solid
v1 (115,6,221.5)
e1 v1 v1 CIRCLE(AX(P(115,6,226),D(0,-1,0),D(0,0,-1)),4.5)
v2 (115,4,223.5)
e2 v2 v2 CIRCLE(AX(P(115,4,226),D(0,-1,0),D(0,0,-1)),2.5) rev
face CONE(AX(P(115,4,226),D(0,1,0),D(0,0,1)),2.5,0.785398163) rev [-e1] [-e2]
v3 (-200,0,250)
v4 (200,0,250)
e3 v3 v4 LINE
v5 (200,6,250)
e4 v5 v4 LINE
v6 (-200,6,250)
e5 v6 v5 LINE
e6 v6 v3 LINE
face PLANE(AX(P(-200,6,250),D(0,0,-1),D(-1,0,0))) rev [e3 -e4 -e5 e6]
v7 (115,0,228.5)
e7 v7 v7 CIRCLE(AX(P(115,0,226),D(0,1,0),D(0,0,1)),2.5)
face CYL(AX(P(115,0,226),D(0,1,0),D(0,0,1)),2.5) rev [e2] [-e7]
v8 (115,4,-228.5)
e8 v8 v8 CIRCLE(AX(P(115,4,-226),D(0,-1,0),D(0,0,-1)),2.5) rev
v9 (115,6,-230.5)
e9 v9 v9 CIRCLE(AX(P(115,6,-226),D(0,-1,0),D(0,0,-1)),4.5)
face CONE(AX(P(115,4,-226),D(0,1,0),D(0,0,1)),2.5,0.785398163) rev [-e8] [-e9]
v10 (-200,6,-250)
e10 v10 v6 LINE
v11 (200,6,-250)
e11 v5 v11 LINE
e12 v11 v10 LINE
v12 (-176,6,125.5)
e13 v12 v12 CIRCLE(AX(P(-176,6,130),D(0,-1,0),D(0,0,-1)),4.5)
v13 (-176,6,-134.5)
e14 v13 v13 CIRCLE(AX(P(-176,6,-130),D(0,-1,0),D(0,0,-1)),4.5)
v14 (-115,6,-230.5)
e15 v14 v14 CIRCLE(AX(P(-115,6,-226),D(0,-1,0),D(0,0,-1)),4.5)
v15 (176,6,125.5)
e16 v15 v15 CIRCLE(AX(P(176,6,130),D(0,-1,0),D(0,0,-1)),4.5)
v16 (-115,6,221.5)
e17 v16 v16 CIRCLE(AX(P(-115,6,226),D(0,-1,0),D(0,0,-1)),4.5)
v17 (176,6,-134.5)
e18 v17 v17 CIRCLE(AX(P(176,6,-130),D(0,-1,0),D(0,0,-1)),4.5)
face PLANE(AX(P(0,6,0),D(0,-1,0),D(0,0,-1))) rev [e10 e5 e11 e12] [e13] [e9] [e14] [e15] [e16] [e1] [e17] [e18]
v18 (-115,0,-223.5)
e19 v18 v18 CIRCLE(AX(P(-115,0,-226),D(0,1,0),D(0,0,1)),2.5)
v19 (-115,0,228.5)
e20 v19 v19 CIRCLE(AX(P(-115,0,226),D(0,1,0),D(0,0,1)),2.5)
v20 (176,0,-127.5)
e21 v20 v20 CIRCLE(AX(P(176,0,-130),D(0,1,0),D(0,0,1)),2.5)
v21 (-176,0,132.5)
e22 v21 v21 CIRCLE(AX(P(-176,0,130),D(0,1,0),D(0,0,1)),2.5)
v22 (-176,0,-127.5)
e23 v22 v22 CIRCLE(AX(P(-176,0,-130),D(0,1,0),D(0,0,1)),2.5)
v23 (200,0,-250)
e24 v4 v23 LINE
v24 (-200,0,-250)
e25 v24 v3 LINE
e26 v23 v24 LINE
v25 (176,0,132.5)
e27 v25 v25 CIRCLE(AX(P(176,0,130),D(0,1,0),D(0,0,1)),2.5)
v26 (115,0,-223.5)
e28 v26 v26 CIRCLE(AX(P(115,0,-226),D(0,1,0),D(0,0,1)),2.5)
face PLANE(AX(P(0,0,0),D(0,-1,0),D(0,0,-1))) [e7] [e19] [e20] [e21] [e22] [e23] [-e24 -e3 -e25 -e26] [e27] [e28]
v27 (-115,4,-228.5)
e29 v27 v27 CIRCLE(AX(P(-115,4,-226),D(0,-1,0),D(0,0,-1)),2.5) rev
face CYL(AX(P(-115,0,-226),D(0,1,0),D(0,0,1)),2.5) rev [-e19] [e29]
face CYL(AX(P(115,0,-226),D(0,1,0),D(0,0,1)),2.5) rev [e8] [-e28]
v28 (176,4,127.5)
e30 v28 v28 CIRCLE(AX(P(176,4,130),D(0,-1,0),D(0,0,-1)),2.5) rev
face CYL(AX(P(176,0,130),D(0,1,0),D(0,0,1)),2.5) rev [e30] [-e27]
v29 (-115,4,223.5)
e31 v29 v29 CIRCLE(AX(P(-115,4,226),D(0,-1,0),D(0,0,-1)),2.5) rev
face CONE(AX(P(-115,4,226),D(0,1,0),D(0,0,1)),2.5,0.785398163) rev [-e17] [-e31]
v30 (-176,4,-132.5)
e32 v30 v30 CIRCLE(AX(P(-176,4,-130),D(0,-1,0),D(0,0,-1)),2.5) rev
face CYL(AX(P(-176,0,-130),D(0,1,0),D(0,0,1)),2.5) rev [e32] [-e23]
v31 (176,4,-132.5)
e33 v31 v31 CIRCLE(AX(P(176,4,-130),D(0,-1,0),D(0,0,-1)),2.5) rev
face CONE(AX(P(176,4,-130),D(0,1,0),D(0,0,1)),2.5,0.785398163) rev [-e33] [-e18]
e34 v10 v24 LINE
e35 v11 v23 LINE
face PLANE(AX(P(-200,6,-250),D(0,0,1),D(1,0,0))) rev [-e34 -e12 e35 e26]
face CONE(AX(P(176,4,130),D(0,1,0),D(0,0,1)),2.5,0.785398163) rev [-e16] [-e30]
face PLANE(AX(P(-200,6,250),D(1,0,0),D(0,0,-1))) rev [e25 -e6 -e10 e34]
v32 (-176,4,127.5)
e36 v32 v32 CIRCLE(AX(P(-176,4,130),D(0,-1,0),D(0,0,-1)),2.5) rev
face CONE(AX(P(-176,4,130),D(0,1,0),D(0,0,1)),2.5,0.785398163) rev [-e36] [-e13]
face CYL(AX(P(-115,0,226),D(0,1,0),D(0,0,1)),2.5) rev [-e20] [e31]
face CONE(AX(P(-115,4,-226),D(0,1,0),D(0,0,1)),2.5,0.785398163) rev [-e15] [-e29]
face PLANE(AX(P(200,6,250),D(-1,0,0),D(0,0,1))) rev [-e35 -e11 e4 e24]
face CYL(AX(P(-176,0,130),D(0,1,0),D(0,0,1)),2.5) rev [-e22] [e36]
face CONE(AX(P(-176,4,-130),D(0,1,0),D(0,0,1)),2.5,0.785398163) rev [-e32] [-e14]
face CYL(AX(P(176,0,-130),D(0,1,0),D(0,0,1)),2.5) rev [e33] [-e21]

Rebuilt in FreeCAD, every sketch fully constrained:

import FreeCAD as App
import Part
import Sketcher


def edges_at(feature, points):
    """Names of the edges that pass closest to the given points."""
    edges = feature.Shape.Edges
    near = lambda p: min(range(len(edges)), key=lambda i: edges[i].distToShape(Part.Vertex(*p))[0])
    return sorted({f"Edge{near(p) + 1}" for p in points})


def add_polygon(sketch, points):
    """Adds a closed chain of lines whose ends are joined by coincident constraints."""
    first, n = sketch.GeometryCount, len(points)
    for a, b in zip(points, points[1:] + points[:1]):
        sketch.addGeometry(Part.LineSegment(App.Vector(*a, 0), App.Vector(*b, 0)), False)
    for i in range(n):
        sketch.addConstraint(Sketcher.Constraint("Coincident", first + i, 2, first + (i + 1) % n, 1))

doc = App.newDocument("Part")
params = doc.addObject("Spreadsheet::Sheet", "Params")
for row, (alias, value) in enumerate([
    ("sketch1_width", "400 mm"),
    ("sketch1_height", "500 mm"),
    ("pad1_length", "6 mm"),
    ("sketch2_diameter", "5 mm"),
    ("chamfer_size", "2 mm"),
], start=1):
    params.set(f"A{row}", alias)
    params.set(f"B{row}", "=" + value)
    params.setAlias(f"B{row}", alias)

body = doc.addObject("PartDesign::Body", "Body")

sketch1 = body.newObject("Sketcher::SketchObject", "Sketch")
sketch1.AttachmentSupport = (doc.getObject("XZ_Plane"), [""])
sketch1.MapMode = "FlatFace"
add_polygon(sketch1, [(-200, -250), (-200, 250), (200, 250), (200, -250)])
sketch1.addConstraint([
    Sketcher.Constraint("Vertical", 0),
    Sketcher.Constraint("Horizontal", 1),
    Sketcher.Constraint("Vertical", 2),
    Sketcher.Constraint("Horizontal", 3),
    Sketcher.Constraint("Symmetric", 0, 2, 2, 2, -1, 1),
    Sketcher.Constraint("DistanceX", 1, 1, 1, 2, 400.0),
    Sketcher.Constraint("DistanceY", 0, 1, 0, 2, 500.0),
])
sketch1.setExpression("Constraints[9]", "Params.sketch1_width")
sketch1.setExpression("Constraints[10]", "Params.sketch1_height")
pad1 = body.newObject("PartDesign::Pad", "Pad")
pad1.Profile = sketch1
pad1.setExpression("Length", "Params.pad1_length")
pad1.Reversed = True

sketch2 = body.newObject("Sketcher::SketchObject", "Sketch001")
sketch2.AttachmentSupport = (doc.getObject("XZ_Plane"), [""])
sketch2.MapMode = "FlatFace"
sketch2.AttachmentOffset = App.Placement(App.Vector(0, 0, -6), App.Rotation())
sketch2.addGeometry([
    Part.Circle(App.Vector(-176, -130, 0), App.Vector(0, 0, 1), 2.5),
    Part.Circle(App.Vector(176, -130, 0), App.Vector(0, 0, 1), 2.5),
    Part.Circle(App.Vector(-176, 130, 0), App.Vector(0, 0, 1), 2.5),
    Part.Circle(App.Vector(176, 130, 0), App.Vector(0, 0, 1), 2.5),
    Part.Circle(App.Vector(-115, -226, 0), App.Vector(0, 0, 1), 2.5),
    Part.Circle(App.Vector(115, -226, 0), App.Vector(0, 0, 1), 2.5),
    Part.Circle(App.Vector(-115, 226, 0), App.Vector(0, 0, 1), 2.5),
    Part.Circle(App.Vector(115, 226, 0), App.Vector(0, 0, 1), 2.5),
], False)
sketch2.addConstraint([
    Sketcher.Constraint("Equal", 0, 1),
    Sketcher.Constraint("Equal", 1, 2),
    Sketcher.Constraint("Equal", 2, 3),
    Sketcher.Constraint("Equal", 3, 4),
    Sketcher.Constraint("Equal", 4, 5),
    Sketcher.Constraint("Equal", 5, 6),
    Sketcher.Constraint("Equal", 6, 7),
    Sketcher.Constraint("Symmetric", 1, 3, 2, 3, -1, 1),
    Sketcher.Constraint("Symmetric", 0, 3, 3, 3, -1, 1),
    Sketcher.Constraint("Symmetric", 5, 3, 6, 3, -1, 1),
    Sketcher.Constraint("Symmetric", 4, 3, 7, 3, -1, 1),
    Sketcher.Constraint("Symmetric", 0, 3, 1, 3, -2),
    Sketcher.Constraint("Symmetric", 4, 3, 5, 3, -2),
    Sketcher.Constraint("Diameter", 0, 5.0),
    Sketcher.Constraint("DistanceX", 0, 3, -1, 1, 176.0),
    Sketcher.Constraint("DistanceY", 0, 3, -1, 1, 130.0),
    Sketcher.Constraint("DistanceX", 4, 3, -1, 1, 115.0),
    Sketcher.Constraint("DistanceY", 4, 3, -1, 1, 226.0),
])
sketch2.setExpression("Constraints[13]", "Params.sketch2_diameter")
pocket1 = body.newObject("PartDesign::Pocket", "Pocket")
pocket1.Profile = sketch2
pocket1.Type = "ThroughAll"
pocket1.Reversed = True
doc.recompute()

chamfer = body.newObject("PartDesign::Chamfer", "Chamfer")
chamfer.Base = (pocket1, edges_at(pocket1, [
    (-115, 6, -228.5),
    (176, 6, 127.5),
    (-176, 6, 127.5),
    (176, 6, -132.5),
    (115, 6, 223.5),
    (-115, 6, 223.5),
    (115, 6, -228.5),
    (-176, 6, -132.5),
]))
chamfer.setExpression("Size", "Params.chamfer_size")

doc.recompute()
